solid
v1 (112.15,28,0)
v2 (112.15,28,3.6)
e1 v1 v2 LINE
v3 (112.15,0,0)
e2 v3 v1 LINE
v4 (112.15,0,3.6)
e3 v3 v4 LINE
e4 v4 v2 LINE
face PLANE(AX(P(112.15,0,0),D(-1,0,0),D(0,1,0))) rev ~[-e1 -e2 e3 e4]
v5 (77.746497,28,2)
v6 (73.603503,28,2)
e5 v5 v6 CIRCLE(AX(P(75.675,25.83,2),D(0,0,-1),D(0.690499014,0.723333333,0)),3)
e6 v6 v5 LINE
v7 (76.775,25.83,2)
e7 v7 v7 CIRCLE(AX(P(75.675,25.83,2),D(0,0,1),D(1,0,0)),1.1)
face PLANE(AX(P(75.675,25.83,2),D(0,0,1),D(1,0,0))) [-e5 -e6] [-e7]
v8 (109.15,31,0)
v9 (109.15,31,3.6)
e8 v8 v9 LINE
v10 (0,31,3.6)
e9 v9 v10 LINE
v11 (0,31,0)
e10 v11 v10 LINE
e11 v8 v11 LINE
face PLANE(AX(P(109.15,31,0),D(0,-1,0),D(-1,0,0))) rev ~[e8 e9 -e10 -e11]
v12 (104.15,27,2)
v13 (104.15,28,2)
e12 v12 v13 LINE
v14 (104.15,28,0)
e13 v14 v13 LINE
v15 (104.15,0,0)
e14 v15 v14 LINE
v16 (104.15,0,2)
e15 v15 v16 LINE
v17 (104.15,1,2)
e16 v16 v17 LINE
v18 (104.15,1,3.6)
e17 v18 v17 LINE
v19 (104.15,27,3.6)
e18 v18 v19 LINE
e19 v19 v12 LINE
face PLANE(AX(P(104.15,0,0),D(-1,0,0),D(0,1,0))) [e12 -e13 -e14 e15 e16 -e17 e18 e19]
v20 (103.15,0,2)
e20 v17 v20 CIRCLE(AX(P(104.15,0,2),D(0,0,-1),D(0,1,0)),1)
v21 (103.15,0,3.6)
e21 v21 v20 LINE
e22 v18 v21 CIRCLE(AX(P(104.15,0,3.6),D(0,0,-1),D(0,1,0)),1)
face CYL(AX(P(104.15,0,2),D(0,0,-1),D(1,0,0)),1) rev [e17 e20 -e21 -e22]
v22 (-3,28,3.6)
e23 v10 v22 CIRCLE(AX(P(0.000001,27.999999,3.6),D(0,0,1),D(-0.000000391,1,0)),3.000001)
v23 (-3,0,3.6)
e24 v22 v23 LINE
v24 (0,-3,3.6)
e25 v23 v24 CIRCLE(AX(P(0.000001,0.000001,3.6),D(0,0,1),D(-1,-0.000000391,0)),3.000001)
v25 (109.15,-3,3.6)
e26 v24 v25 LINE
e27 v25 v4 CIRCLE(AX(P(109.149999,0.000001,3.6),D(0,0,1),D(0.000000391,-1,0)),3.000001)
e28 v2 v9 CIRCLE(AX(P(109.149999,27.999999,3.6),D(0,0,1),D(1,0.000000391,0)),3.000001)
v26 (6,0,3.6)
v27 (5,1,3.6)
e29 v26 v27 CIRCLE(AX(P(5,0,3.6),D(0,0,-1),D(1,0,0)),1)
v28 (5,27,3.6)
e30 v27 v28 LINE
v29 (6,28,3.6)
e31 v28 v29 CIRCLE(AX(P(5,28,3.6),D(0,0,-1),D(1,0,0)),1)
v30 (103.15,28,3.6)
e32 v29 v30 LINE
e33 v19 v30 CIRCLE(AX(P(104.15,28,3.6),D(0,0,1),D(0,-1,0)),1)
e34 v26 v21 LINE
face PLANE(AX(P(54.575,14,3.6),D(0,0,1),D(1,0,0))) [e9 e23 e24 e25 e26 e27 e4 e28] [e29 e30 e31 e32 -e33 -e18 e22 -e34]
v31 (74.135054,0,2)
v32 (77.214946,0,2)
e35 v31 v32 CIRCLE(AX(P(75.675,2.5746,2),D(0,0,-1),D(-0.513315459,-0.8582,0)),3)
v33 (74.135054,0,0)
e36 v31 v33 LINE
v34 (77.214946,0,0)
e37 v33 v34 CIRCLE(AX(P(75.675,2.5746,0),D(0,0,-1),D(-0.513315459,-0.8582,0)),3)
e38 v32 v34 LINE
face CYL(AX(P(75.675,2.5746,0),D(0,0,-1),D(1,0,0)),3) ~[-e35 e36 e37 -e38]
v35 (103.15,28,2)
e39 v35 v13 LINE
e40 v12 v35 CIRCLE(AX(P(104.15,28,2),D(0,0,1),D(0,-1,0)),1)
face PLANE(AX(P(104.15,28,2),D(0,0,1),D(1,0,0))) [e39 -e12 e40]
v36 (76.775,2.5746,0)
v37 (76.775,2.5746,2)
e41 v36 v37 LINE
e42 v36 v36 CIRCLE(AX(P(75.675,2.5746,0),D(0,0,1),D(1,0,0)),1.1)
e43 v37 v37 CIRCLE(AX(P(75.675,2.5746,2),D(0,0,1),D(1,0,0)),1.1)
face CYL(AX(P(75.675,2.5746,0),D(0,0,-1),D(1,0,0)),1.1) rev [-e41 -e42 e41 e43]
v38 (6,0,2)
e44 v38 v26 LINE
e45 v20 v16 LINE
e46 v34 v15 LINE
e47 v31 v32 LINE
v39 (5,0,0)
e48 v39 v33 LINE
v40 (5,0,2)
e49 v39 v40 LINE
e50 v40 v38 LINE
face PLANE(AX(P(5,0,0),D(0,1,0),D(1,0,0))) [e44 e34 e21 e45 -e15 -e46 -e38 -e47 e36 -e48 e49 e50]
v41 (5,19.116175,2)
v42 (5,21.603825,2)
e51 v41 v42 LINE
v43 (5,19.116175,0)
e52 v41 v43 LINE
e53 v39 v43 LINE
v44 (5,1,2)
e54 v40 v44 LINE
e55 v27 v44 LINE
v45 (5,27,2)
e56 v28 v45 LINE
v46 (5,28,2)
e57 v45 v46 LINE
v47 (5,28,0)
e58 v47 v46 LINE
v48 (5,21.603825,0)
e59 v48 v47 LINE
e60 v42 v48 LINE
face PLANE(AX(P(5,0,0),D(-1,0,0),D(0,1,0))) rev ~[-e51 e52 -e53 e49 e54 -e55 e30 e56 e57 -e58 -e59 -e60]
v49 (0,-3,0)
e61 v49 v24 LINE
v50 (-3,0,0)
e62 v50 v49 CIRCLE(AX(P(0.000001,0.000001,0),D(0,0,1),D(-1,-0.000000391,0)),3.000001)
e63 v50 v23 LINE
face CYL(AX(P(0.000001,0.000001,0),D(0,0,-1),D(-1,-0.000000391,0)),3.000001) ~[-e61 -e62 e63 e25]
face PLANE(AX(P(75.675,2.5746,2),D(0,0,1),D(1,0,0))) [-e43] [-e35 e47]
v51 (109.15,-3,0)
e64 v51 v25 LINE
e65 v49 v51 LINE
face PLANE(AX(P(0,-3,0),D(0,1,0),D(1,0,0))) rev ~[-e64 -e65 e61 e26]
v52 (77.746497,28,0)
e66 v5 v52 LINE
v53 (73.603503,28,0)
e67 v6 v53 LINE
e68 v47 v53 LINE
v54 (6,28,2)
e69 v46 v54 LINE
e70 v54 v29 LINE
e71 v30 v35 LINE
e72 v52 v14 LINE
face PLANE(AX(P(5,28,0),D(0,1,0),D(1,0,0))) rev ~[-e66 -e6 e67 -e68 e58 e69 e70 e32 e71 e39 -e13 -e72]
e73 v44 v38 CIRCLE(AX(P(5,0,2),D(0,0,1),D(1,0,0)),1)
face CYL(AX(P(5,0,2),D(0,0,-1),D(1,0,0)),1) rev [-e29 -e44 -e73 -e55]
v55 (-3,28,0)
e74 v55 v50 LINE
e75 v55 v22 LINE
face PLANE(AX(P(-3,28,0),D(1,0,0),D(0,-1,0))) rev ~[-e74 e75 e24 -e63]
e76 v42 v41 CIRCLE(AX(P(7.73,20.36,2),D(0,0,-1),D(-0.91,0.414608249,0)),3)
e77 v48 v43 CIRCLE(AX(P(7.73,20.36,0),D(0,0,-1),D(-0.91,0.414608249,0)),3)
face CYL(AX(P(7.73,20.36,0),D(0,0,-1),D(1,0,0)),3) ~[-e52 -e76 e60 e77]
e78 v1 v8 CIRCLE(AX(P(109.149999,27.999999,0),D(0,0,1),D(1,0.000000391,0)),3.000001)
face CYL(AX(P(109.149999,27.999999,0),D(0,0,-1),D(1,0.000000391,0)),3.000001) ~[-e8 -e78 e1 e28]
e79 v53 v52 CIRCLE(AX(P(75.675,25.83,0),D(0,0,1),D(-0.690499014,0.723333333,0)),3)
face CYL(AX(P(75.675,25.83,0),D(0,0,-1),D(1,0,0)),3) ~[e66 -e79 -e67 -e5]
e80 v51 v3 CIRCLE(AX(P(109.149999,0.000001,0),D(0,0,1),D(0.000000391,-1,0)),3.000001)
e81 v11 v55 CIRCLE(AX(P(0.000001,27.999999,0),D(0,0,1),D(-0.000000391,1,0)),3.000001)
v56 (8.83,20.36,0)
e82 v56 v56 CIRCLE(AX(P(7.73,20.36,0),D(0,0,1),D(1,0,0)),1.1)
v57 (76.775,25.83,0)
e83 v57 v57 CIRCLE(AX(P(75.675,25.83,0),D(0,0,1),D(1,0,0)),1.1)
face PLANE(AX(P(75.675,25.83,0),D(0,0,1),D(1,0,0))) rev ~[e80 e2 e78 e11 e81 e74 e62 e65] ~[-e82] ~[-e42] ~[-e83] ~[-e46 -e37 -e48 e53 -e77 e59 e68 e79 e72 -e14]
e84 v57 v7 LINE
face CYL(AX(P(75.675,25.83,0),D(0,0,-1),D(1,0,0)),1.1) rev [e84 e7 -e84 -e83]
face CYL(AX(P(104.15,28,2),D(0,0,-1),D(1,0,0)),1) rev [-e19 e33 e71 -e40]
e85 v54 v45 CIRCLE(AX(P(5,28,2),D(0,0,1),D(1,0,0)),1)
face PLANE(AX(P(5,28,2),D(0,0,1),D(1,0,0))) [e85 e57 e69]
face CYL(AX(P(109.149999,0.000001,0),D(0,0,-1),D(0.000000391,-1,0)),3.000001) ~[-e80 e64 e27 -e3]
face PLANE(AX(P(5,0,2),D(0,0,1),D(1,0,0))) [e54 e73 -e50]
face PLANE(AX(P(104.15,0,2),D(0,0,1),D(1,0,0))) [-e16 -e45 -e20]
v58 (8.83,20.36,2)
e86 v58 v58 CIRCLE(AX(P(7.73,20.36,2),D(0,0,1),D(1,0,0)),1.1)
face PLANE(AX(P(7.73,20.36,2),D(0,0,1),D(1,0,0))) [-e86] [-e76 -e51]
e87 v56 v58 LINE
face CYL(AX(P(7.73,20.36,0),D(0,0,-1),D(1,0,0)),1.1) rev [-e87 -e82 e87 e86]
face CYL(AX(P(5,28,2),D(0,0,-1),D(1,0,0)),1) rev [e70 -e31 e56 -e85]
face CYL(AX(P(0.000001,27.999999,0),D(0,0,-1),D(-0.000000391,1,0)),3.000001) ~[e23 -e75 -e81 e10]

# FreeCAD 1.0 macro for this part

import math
import FreeCAD as App
import Part
import Sketcher

V = App.Vector
Q = App.Units.Quantity


def add_polygon(sketch, points):
    """Adds a closed chain of lines whose ends are joined by coincident constraints."""
    first, n = sketch.GeometryCount, len(points)
    for a, b in zip(points, points[1:] + points[:1]):
        sketch.addGeometry(Part.LineSegment(App.Vector(*a, 0), App.Vector(*b, 0)), False)
    for i in range(n):
        sketch.addConstraint(Sketcher.Constraint("Coincident", first + i, 2, first + (i + 1) % n, 1))

doc = App.newDocument("Part")
params = doc.addObject("Spreadsheet::Sheet", "Params")
for row, (alias, value) in enumerate([
    ("sketch1_radius", "3.000001 mm"),
    ("sketch1_height", "28 mm"),
    ("sketch1_width", "109.15 mm"),
    ("pad1_length", "3.6 mm"),
    ("sketch2_diameter", "6 mm"),
    ("sketch2_diameter2", "2.2 mm"),
    ("pad2_length", "2 mm"),
    ("sketch3_diameter", "2 mm"),
    ("pocket1_length", "5 mm"),
], start=1):
    params.set(f"A{row}", alias)
    params.set(f"B{row}", "=" + value)
    params.setAlias(f"B{row}", alias)

body = doc.addObject("PartDesign::Body", "Body")

sketch1 = doc.addObject("Sketcher::SketchObject", "Sketch")
body.addObject(sketch1)
sketch1.AttachmentSupport = (doc.XY_Plane, [""])
sketch1.MapMode = "FlatFace"
sketch1.addGeometry(Part.LineSegment(V(0, -3, 0), V(109.2, -3, 0)), False)
sketch1.addGeometry(Part.ArcOfCircle(Part.Circle(V(109.1, 0, 0), V(0, 0, 1), 3), math.radians(-90), math.radians(0)), False)
sketch1.addGeometry(Part.LineSegment(V(112.2, 0, 0), V(112.2, 28, 0)), False)
sketch1.addGeometry(Part.ArcOfCircle(Part.Circle(V(109.1, 28, 0), V(0, 0, 1), 3), math.radians(0), math.radians(90)), False)
sketch1.addGeometry(Part.LineSegment(V(109.2, 31, 0), V(0, 31, 0)), False)
sketch1.addGeometry(Part.ArcOfCircle(Part.Circle(V(0, 28, 0), V(0, 0, 1), 3), math.radians(90), math.radians(180)), False)
sketch1.addGeometry(Part.LineSegment(V(-3, 28, 0), V(-3, 0, 0)), False)
sketch1.addGeometry(Part.ArcOfCircle(Part.Circle(V(0, 0, 0), V(0, 0, 1), 3), math.radians(-180), math.radians(-90)), False)
add_polygon(sketch1, [(104.2, 0), (5, 0), (5, 28), (104.2, 28)])
sketch1.addConstraint([
    Sketcher.Constraint("Tangent", 0, 2, 1, 1),
    Sketcher.Constraint("Tangent", 1, 2, 2, 1),
    Sketcher.Constraint("Tangent", 2, 2, 3, 1),
    Sketcher.Constraint("Tangent", 3, 2, 4, 1),
    Sketcher.Constraint("Tangent", 4, 2, 5, 1),
    Sketcher.Constraint("Tangent", 5, 2, 6, 1),
    Sketcher.Constraint("Tangent", 6, 2, 7, 1),
    Sketcher.Constraint("Tangent", 7, 2, 0, 1),
    Sketcher.Constraint("Horizontal", 0),
    Sketcher.Constraint("Vertical", 2),
    Sketcher.Constraint("Horizontal", 4),
    Sketcher.Constraint("Vertical", 6),
    Sketcher.Constraint("Horizontal", 8),
    Sketcher.Constraint("Vertical", 9),
    Sketcher.Constraint("Horizontal", 10),
    Sketcher.Constraint("Vertical", 11),
    Sketcher.Constraint("Coincident", 7, 3, -1, 1),
    Sketcher.Constraint("Equal", 1, 3),
    Sketcher.Constraint("Equal", 3, 5),
    Sketcher.Constraint("Equal", 5, 7),
    Sketcher.Constraint("PointOnObject", 8, 2, -1),
    Sketcher.Constraint("Horizontal", 5, 2, 9, 2),
    Sketcher.Constraint("Radius", 1, Q("3.000001 mm")),
    Sketcher.Constraint("DistanceY", 2, 1, 2, 2, Q("28 mm")),
    Sketcher.Constraint("DistanceX", -1, 1, 8, 2, Q("5 mm")),
    Sketcher.Constraint("DistanceX", 10, 2, 3, 3, Q("4.999999 mm")),
    Sketcher.Constraint("DistanceX", 0, 1, 0, 2, Q("109.15 mm")),
])
sketch1.setExpression("Constraints[26]", "Params.sketch1_radius")
sketch1.setExpression("Constraints[27]", "Params.sketch1_height")
sketch1.setExpression("Constraints[30]", "Params.sketch1_width")
pad1 = doc.addObject("PartDesign::Pad", "Pad")
body.addObject(pad1)
pad1.Profile = sketch1
pad1.setExpression("Length", "Params.pad1_length")

sketch2 = doc.addObject("Sketcher::SketchObject", "Sketch001")
body.addObject(sketch2)
sketch2.AttachmentSupport = (doc.XY_Plane, [""])
sketch2.MapMode = "FlatFace"
sketch2.addGeometry([
    Part.Circle(V(75.7, 25.8, 0), V(0, 0, 1), 3),
    Part.Circle(V(75.7, 25.8, 0), V(0, 0, 1), 1.1),
    Part.Circle(V(75.7, 2.6, 0), V(0, 0, 1), 3),
    Part.Circle(V(75.7, 2.6, 0), V(0, 0, 1), 1.1),
    Part.Circle(V(7.7, 20.4, 0), V(0, 0, 1), 3),
    Part.Circle(V(7.7, 20.4, 0), V(0, 0, 1), 1.1),
], False)
sketch2.addConstraint([
    Sketcher.Constraint("Coincident", 1, 3, 0, 3),
    Sketcher.Constraint("Coincident", 3, 3, 2, 3),
    Sketcher.Constraint("Coincident", 5, 3, 4, 3),
    Sketcher.Constraint("Equal", 0, 2),
    Sketcher.Constraint("Equal", 1, 3),
    Sketcher.Constraint("Equal", 2, 4),
    Sketcher.Constraint("Equal", 3, 5),
    Sketcher.Constraint("Vertical", 1, 3, 2, 3),
    Sketcher.Constraint("Diameter", 0, Q("6 mm")),
    Sketcher.Constraint("Diameter", 1, Q("2.2 mm")),
    Sketcher.Constraint("DistanceY", -1, 1, 0, 3, Q("25.83 mm")),
    Sketcher.Constraint("DistanceX", -1, 1, 4, 3, Q("7.73 mm")),
    Sketcher.Constraint("DistanceY", -1, 1, 4, 3, Q("20.36 mm")),
    Sketcher.Constraint("DistanceX", -1, 1, 0, 3, Q("75.675 mm")),
    Sketcher.Constraint("DistanceY", -1, 1, 2, 3, Q("2.5746 mm")),
])
sketch2.setExpression("Constraints[8]", "Params.sketch2_diameter")
sketch2.setExpression("Constraints[9]", "Params.sketch2_diameter2")
pad2 = doc.addObject("PartDesign::Pad", "Pad001")
body.addObject(pad2)
pad2.Profile = sketch2
pad2.setExpression("Length", "Params.pad2_length")

sketch3 = doc.addObject("Sketcher::SketchObject", "Sketch002")
body.addObject(sketch3)
sketch3.AttachmentSupport = (doc.XY_Plane, [""])
sketch3.MapMode = "FlatFace"
sketch3.AttachmentOffset = App.Placement(V(0, 0, 2), App.Rotation())
sketch3.addGeometry([
    Part.Circle(V(5, 28, 0), V(0, 0, 1), 1),
    Part.Circle(V(104.2, 28, 0), V(0, 0, 1), 1),
    Part.Circle(V(104.2, 0, 0), V(0, 0, 1), 1),
    Part.Circle(V(5, 0, 0), V(0, 0, 1), 1),
], False)
sketch3.addConstraint([
    Sketcher.Constraint("Equal", 0, 1),
    Sketcher.Constraint("Equal", 1, 2),
    Sketcher.Constraint("Equal", 2, 3),
    Sketcher.Constraint("PointOnObject", 2, 3, -1),
    Sketcher.Constraint("PointOnObject", 3, 3, -1),
    Sketcher.Constraint("Horizontal", 0, 3, 1, 3),
    Sketcher.Constraint("Vertical", 1, 3, 2, 3),
    Sketcher.Constraint("Vertical", 0, 3, 3, 3),
    Sketcher.Constraint("Diameter", 0, Q("2 mm")),
    Sketcher.Constraint("DistanceX", -1, 1, 0, 3, Q("5 mm")),
    Sketcher.Constraint("DistanceY", -1, 1, 0, 3, Q("28 mm")),
    Sketcher.Constraint("DistanceX", -1, 1, 1, 3, Q("104.15 mm")),
])
sketch3.setExpression("Constraints[8]", "Params.sketch3_diameter")
pocket1 = doc.addObject("PartDesign::Pocket", "Pocket")
body.addObject(pocket1)
pocket1.Profile = sketch3
pocket1.setExpression("Length", "Params.pocket1_length")
pocket1.Reversed = True

doc.recompute()
